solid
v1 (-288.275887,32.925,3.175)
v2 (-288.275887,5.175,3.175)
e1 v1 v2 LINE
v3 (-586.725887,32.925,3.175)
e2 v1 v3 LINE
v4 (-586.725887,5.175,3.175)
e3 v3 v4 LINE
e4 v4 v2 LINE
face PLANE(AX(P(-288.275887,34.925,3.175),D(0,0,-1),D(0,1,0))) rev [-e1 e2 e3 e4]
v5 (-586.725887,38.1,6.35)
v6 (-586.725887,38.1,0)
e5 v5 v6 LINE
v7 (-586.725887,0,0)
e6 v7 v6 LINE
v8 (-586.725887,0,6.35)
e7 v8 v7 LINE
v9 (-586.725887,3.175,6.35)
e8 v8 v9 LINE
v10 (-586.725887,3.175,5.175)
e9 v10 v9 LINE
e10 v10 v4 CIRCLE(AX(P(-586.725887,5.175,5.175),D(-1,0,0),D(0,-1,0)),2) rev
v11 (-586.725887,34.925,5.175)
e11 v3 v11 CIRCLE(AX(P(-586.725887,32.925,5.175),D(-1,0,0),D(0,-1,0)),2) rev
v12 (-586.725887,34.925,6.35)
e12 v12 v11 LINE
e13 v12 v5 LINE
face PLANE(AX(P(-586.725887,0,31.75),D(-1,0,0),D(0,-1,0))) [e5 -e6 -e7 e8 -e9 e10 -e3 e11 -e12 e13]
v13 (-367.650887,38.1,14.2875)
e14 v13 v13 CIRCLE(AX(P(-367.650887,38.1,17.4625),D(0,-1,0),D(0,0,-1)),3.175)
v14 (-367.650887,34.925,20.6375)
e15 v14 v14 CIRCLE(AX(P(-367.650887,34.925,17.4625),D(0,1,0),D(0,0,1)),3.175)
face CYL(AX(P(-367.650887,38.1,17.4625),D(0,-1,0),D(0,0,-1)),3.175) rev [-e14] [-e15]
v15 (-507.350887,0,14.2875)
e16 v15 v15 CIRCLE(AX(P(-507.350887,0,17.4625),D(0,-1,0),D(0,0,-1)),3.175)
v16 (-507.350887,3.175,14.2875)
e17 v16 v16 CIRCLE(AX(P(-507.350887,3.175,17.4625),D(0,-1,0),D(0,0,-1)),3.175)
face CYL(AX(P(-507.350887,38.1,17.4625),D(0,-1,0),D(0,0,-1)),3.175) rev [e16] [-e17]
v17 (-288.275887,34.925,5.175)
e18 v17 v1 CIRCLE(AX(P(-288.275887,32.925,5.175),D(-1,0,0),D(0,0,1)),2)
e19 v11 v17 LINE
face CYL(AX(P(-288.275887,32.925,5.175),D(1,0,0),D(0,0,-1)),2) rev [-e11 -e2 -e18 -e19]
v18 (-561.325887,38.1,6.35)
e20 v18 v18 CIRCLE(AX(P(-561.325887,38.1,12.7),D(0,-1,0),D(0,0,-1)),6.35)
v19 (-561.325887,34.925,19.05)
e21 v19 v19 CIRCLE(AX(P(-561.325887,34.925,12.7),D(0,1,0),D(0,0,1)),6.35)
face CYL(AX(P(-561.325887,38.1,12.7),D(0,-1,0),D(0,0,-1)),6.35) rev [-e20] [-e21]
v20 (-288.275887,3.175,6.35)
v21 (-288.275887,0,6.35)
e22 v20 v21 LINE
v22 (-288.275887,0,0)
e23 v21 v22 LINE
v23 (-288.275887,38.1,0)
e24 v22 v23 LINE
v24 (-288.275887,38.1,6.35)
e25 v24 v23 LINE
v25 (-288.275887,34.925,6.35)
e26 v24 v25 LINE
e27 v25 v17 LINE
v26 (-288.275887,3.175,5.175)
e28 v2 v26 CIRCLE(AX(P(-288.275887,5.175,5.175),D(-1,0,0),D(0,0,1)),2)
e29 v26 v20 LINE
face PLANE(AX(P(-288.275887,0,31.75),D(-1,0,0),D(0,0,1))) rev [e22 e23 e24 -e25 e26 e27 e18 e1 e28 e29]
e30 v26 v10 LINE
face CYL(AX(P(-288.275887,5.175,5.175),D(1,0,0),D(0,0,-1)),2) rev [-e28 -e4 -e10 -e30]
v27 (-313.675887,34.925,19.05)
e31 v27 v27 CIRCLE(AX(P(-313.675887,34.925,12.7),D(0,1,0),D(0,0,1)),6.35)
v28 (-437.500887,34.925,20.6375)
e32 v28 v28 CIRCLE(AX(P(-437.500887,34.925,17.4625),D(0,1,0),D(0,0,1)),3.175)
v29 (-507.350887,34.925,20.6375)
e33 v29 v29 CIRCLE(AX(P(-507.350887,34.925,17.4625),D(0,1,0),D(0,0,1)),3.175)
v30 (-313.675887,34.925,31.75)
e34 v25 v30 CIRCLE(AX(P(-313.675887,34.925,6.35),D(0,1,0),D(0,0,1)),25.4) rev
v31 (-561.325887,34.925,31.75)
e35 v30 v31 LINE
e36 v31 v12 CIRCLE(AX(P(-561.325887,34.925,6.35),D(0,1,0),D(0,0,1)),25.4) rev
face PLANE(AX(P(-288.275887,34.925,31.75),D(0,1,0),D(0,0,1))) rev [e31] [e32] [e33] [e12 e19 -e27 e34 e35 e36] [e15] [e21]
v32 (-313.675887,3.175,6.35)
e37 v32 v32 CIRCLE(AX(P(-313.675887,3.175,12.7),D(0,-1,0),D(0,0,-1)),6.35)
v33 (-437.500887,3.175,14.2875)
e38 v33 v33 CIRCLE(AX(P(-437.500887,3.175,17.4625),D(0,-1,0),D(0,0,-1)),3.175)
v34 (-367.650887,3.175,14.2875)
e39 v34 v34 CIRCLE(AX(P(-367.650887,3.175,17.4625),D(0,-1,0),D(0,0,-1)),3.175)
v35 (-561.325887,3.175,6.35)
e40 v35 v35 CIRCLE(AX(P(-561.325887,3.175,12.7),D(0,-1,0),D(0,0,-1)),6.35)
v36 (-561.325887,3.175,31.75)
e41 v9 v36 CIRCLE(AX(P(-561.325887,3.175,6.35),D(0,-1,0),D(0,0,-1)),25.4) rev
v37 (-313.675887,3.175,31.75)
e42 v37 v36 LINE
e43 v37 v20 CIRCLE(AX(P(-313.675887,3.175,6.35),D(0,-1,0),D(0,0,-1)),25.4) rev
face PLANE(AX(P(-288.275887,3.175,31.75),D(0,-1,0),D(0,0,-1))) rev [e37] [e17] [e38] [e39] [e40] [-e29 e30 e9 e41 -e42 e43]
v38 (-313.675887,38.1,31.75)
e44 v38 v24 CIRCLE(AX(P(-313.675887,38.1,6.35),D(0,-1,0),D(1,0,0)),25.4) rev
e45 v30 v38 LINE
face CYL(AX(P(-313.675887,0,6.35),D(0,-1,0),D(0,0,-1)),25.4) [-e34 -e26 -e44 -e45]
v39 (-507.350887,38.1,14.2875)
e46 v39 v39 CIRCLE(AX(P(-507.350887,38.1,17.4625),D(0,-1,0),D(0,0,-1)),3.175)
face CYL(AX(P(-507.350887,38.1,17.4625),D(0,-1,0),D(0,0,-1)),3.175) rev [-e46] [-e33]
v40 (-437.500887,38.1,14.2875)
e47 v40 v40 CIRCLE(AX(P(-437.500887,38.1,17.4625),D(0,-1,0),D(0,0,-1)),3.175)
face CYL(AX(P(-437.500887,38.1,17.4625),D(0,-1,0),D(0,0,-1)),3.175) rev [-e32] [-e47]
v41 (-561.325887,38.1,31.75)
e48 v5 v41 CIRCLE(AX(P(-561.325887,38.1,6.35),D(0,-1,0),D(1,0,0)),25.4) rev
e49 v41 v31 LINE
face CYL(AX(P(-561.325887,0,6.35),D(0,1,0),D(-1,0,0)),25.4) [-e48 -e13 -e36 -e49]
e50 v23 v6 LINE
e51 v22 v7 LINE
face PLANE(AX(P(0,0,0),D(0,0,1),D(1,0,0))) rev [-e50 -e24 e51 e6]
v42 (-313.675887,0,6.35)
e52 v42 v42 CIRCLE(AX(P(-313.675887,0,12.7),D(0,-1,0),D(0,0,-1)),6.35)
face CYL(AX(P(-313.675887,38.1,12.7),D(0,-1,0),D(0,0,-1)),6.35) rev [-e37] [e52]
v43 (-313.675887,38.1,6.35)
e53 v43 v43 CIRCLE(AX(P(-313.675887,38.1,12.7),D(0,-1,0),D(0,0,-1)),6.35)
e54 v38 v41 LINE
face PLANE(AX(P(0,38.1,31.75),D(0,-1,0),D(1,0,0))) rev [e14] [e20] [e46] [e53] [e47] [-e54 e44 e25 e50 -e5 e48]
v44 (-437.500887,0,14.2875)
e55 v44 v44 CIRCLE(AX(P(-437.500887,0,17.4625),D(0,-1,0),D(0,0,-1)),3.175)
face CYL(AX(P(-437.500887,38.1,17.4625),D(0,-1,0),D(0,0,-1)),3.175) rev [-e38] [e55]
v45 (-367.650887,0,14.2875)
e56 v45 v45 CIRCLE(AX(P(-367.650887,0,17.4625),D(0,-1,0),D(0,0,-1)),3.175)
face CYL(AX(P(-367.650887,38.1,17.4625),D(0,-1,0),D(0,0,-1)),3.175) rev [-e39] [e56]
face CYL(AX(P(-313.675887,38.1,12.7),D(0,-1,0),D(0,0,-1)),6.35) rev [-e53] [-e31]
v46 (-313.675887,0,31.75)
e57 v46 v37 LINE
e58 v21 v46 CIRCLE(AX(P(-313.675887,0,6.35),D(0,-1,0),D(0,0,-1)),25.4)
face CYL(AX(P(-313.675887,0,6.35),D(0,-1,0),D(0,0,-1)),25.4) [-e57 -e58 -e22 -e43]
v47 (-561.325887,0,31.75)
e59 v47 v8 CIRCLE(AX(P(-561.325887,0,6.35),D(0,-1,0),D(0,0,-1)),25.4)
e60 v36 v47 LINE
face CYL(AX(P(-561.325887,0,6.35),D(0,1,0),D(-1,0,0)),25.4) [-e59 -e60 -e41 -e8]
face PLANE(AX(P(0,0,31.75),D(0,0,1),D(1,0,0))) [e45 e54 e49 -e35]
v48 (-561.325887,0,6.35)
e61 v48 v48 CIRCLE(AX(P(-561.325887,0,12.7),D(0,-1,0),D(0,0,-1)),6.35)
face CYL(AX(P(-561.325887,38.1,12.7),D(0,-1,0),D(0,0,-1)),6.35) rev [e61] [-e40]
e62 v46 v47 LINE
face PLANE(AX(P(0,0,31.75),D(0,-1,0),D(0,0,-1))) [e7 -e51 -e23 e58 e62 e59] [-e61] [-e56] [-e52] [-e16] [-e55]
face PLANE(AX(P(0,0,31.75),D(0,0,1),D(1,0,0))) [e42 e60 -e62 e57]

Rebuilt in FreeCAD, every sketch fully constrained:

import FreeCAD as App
import Part
import Sketcher

V = App.Vector
Q = App.Units.Quantity


def edges_at(feature, points):
    """Names of the edges that pass closest to the given points."""
    edges = feature.Shape.Edges
    near = lambda p: min(range(len(edges)), key=lambda i: edges[i].distToShape(Part.Vertex(*p))[0])
    return sorted({f"Edge{near(p) + 1}" for p in points})


def add_polygon(sketch, points):
    """Adds a closed chain of lines whose ends are joined by coincident constraints."""
    first, n = sketch.GeometryCount, len(points)
    for a, b in zip(points, points[1:] + points[:1]):
        sketch.addGeometry(Part.LineSegment(App.Vector(*a, 0), App.Vector(*b, 0)), False)
    for i in range(n):
        sketch.addConstraint(Sketcher.Constraint("Coincident", first + i, 2, first + (i + 1) % n, 1))

doc = App.newDocument("Part")
body = doc.addObject("PartDesign::Body", "Body")

sketch1 = body.newObject("Sketcher::SketchObject", "Sketch")
sketch1.AttachmentSupport = (doc.getObject("XY_Plane"), [""])
sketch1.MapMode = "FlatFace"
add_polygon(sketch1, [(-586.725887, 38.1), (-586.725887, 0), (-288.275887, 0), (-288.275887, 38.1)])
sketch1.addConstraint([
    Sketcher.Constraint("Vertical", 0),
    Sketcher.Constraint("Horizontal", 1),
    Sketcher.Constraint("Vertical", 2),
    Sketcher.Constraint("Horizontal", 3),
    Sketcher.Constraint("PointOnObject", 0, 2, -1),
    Sketcher.Constraint("DistanceY", 0, 2, 0, 1, Q("1.5 in")),
    Sketcher.Constraint("DistanceX", 1, 1, 1, 2, Q("11.75 in")),
    Sketcher.Constraint("DistanceX", 0, 2, -1, 1, 586.725887),
])
pad1 = body.newObject("PartDesign::Pad", "Pad")
pad1.Profile = sketch1
pad1.Length = Q("1.25 in")

sketch2 = body.newObject("Sketcher::SketchObject", "Sketch001")
sketch2.AttachmentSupport = (doc.getObject("YZ_Plane"), [""])
sketch2.MapMode = "FlatFace"
sketch2.AttachmentOffset = App.Placement(V(0, 0, -586.725887), App.Rotation())
add_polygon(sketch2, [(34.925, 3.175), (3.175, 3.175), (3.175, 31.75), (34.925, 31.75)])
sketch2.addConstraint([
    Sketcher.Constraint("Horizontal", 0),
    Sketcher.Constraint("Vertical", 1),
    Sketcher.Constraint("Horizontal", 2),
    Sketcher.Constraint("Vertical", 3),
    Sketcher.Constraint("DistanceX", 0, 2, 0, 1, Q("1.25 in")),
    Sketcher.Constraint("DistanceY", 1, 1, 1, 2, Q("1.125 in")),
    Sketcher.Constraint("DistanceY", -1, 1, 1, 2, Q("1.25 in")),
    Sketcher.Constraint("DistanceX", -1, 1, 0, 2, Q("0.125 in")),
])
pocket1 = body.newObject("PartDesign::Pocket", "Pocket")
pocket1.Profile = sketch2
pocket1.Type = "ThroughAll"
pocket1.Reversed = True

sketch3 = body.newObject("Sketcher::SketchObject", "Sketch002")
sketch3.AttachmentSupport = (doc.getObject("XZ_Plane"), [""])
sketch3.MapMode = "FlatFace"
sketch3.addGeometry([
    Part.Circle(V(-561.325887, 12.7, 0), V(0, 0, 1), 6.35),
    Part.Circle(V(-313.675887, 12.7, 0), V(0, 0, 1), 6.35),
], False)
sketch3.addConstraint([
    Sketcher.Constraint("Equal", 0, 1),
    Sketcher.Constraint("Horizontal", 0, 3, 1, 3),
    Sketcher.Constraint("Diameter", 0, Q("0.5 in")),
    Sketcher.Constraint("DistanceY", -1, 1, 0, 3, Q("0.5 in")),
    Sketcher.Constraint("DistanceX", 0, 3, 1, 3, Q("9.75 in")),
    Sketcher.Constraint("DistanceX", 0, 3, -1, 1, 561.325887),
])
pocket2 = body.newObject("PartDesign::Pocket", "Pocket001")
pocket2.Profile = sketch3
pocket2.Type = "ThroughAll"
doc.recompute()

fillet = body.newObject("PartDesign::Fillet", "Fillet")
fillet.Base = (pocket2, edges_at(pocket2, [
    (-586.726, 36.513, 31.75),
    (-288.276, 1.587, 31.75),
    (-288.276, 36.513, 31.75),
    (-586.726, 1.587, 31.75),
]))
fillet.Radius = Q("1 in")

sketch4 = body.newObject("Sketcher::SketchObject", "Sketch003")
sketch4.AttachmentSupport = (doc.getObject("XZ_Plane"), [""])
sketch4.MapMode = "FlatFace"
sketch4.addGeometry([
    Part.Circle(V(-507.350887, 17.4625, 0), V(0, 0, 1), 3.175),
    Part.Circle(V(-437.500887, 17.4625, 0), V(0, 0, 1), 3.175),
    Part.Circle(V(-367.650887, 17.4625, 0), V(0, 0, 1), 3.175),
], False)
sketch4.addConstraint([
    Sketcher.Constraint("Equal", 0, 1),
    Sketcher.Constraint("Equal", 1, 2),
    Sketcher.Constraint("Horizontal", 0, 3, 1, 3),
    Sketcher.Constraint("Horizontal", 1, 3, 2, 3),
    Sketcher.Constraint("Diameter", 0, Q("0.25 in")),
    Sketcher.Constraint("DistanceX", 0, 3, 2, 3, Q("5.5 in")),
    Sketcher.Constraint("DistanceX", 0, 3, 1, 3, Q("2.75 in")),
    Sketcher.Constraint("DistanceY", -1, 1, 0, 3, Q("0.6875 in")),
    Sketcher.Constraint("DistanceX", 0, 3, -1, 1, 507.350887),
])
pocket3 = body.newObject("PartDesign::Pocket", "Pocket002")
pocket3.Profile = sketch4
pocket3.Type = "ThroughAll"
doc.recompute()

fillet2 = body.newObject("PartDesign::Fillet", "Fillet001")
fillet2.Base = (pocket3, edges_at(pocket3, [(-437.501, 3.175, 3.175), (-437.501, 34.925, 3.175)]))
fillet2.Radius = 2

doc.recompute()
